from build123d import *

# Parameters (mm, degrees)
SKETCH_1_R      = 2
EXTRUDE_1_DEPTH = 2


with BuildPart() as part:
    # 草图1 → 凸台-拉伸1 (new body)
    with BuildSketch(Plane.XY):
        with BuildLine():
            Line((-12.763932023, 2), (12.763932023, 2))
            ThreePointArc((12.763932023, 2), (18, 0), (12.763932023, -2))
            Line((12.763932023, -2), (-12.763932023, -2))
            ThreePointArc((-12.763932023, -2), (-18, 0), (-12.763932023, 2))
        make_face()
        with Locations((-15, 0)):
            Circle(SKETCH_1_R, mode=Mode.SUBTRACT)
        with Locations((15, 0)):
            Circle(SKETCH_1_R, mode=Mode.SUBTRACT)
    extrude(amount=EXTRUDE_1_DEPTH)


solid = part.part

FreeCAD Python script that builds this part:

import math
import FreeCAD as App
import Part
import Sketcher
from FreeCAD import Vector

doc = App.newDocument("Part")
params = doc.addObject("Spreadsheet::Sheet", "Params")
for row, (alias, value) in enumerate([
    ("sketch1_diameter", "4 mm"),
    ("sketch1_radius", "3 mm"),
    ("pad1_length", "2 mm"),
], start=1):
    params.set(f"A{row}", alias)
    params.set(f"B{row}", "=" + value)
    params.setAlias(f"B{row}", alias)

body = doc.addObject("PartDesign::Body", "Body")

# Sketch on XY plane
sketch1 = body.newObject("Sketcher::SketchObject", "Sketch")
sketch1.AttachmentSupport = (doc.getObject("XY_Plane"), [""])
sketch1.MapMode = "FlatFace"
sketch1.addGeometry([
    Part.LineSegment(Vector(12.8, 2, 0), Vector(-12.8, 2, 0)),  # 0
    Part.ArcOfCircle(Part.Circle(Vector(-15, 0, 0), Vector(0, 0, 1), 3), math.radians(42), math.radians(318)),  # 1
    Part.LineSegment(Vector(-12.8, -2, 0), Vector(12.8, -2, 0)),  # 2
    Part.ArcOfCircle(Part.Circle(Vector(15, 0, 0), Vector(0, 0, 1), 3), math.radians(-138), math.radians(138)),  # 3
    Part.Circle(Vector(15, 0, 0), Vector(0, 0, 1), 2),  # 4
    Part.Circle(Vector(-15, 0, 0), Vector(0, 0, 1), 2),  # 5
], False)
sketch1.addConstraint([
    Sketcher.Constraint("Coincident", 0, 2, 1, 1),
    Sketcher.Constraint("Coincident", 1, 2, 2, 1),
    Sketcher.Constraint("Coincident", 2, 2, 3, 1),
    Sketcher.Constraint("Coincident", 3, 2, 0, 1),
    Sketcher.Constraint("Horizontal", 0),
    Sketcher.Constraint("Horizontal", 2),
    Sketcher.Constraint("Coincident", 4, 3, 3, 3),
    Sketcher.Constraint("Coincident", 5, 3, 1, 3),
    Sketcher.Constraint("Equal", 1, 3),
    Sketcher.Constraint("Equal", 4, 5),
    Sketcher.Constraint("Symmetric", 1, 3, 3, 3, -1, 1),
    Sketcher.Constraint("Symmetric", 0, 2, 1, 2, -1),
    Sketcher.Constraint("Diameter", 4, 4.0),
    Sketcher.Constraint("Radius", 1, 3.0),
    Sketcher.Constraint("DistanceX", 1, 3, -1, 1, 15.0),
    Sketcher.Constraint("DistanceY", -1, 1, 0, 2, 2.0),
])
sketch1.setExpression("Constraints[12]", "Params.sketch1_diameter")
sketch1.setExpression("Constraints[13]", "Params.sketch1_radius")
pad1 = body.newObject("PartDesign::Pad", "Pad")
pad1.Profile = sketch1
pad1.setExpression("Length", "Params.pad1_length")

doc.recompute()
